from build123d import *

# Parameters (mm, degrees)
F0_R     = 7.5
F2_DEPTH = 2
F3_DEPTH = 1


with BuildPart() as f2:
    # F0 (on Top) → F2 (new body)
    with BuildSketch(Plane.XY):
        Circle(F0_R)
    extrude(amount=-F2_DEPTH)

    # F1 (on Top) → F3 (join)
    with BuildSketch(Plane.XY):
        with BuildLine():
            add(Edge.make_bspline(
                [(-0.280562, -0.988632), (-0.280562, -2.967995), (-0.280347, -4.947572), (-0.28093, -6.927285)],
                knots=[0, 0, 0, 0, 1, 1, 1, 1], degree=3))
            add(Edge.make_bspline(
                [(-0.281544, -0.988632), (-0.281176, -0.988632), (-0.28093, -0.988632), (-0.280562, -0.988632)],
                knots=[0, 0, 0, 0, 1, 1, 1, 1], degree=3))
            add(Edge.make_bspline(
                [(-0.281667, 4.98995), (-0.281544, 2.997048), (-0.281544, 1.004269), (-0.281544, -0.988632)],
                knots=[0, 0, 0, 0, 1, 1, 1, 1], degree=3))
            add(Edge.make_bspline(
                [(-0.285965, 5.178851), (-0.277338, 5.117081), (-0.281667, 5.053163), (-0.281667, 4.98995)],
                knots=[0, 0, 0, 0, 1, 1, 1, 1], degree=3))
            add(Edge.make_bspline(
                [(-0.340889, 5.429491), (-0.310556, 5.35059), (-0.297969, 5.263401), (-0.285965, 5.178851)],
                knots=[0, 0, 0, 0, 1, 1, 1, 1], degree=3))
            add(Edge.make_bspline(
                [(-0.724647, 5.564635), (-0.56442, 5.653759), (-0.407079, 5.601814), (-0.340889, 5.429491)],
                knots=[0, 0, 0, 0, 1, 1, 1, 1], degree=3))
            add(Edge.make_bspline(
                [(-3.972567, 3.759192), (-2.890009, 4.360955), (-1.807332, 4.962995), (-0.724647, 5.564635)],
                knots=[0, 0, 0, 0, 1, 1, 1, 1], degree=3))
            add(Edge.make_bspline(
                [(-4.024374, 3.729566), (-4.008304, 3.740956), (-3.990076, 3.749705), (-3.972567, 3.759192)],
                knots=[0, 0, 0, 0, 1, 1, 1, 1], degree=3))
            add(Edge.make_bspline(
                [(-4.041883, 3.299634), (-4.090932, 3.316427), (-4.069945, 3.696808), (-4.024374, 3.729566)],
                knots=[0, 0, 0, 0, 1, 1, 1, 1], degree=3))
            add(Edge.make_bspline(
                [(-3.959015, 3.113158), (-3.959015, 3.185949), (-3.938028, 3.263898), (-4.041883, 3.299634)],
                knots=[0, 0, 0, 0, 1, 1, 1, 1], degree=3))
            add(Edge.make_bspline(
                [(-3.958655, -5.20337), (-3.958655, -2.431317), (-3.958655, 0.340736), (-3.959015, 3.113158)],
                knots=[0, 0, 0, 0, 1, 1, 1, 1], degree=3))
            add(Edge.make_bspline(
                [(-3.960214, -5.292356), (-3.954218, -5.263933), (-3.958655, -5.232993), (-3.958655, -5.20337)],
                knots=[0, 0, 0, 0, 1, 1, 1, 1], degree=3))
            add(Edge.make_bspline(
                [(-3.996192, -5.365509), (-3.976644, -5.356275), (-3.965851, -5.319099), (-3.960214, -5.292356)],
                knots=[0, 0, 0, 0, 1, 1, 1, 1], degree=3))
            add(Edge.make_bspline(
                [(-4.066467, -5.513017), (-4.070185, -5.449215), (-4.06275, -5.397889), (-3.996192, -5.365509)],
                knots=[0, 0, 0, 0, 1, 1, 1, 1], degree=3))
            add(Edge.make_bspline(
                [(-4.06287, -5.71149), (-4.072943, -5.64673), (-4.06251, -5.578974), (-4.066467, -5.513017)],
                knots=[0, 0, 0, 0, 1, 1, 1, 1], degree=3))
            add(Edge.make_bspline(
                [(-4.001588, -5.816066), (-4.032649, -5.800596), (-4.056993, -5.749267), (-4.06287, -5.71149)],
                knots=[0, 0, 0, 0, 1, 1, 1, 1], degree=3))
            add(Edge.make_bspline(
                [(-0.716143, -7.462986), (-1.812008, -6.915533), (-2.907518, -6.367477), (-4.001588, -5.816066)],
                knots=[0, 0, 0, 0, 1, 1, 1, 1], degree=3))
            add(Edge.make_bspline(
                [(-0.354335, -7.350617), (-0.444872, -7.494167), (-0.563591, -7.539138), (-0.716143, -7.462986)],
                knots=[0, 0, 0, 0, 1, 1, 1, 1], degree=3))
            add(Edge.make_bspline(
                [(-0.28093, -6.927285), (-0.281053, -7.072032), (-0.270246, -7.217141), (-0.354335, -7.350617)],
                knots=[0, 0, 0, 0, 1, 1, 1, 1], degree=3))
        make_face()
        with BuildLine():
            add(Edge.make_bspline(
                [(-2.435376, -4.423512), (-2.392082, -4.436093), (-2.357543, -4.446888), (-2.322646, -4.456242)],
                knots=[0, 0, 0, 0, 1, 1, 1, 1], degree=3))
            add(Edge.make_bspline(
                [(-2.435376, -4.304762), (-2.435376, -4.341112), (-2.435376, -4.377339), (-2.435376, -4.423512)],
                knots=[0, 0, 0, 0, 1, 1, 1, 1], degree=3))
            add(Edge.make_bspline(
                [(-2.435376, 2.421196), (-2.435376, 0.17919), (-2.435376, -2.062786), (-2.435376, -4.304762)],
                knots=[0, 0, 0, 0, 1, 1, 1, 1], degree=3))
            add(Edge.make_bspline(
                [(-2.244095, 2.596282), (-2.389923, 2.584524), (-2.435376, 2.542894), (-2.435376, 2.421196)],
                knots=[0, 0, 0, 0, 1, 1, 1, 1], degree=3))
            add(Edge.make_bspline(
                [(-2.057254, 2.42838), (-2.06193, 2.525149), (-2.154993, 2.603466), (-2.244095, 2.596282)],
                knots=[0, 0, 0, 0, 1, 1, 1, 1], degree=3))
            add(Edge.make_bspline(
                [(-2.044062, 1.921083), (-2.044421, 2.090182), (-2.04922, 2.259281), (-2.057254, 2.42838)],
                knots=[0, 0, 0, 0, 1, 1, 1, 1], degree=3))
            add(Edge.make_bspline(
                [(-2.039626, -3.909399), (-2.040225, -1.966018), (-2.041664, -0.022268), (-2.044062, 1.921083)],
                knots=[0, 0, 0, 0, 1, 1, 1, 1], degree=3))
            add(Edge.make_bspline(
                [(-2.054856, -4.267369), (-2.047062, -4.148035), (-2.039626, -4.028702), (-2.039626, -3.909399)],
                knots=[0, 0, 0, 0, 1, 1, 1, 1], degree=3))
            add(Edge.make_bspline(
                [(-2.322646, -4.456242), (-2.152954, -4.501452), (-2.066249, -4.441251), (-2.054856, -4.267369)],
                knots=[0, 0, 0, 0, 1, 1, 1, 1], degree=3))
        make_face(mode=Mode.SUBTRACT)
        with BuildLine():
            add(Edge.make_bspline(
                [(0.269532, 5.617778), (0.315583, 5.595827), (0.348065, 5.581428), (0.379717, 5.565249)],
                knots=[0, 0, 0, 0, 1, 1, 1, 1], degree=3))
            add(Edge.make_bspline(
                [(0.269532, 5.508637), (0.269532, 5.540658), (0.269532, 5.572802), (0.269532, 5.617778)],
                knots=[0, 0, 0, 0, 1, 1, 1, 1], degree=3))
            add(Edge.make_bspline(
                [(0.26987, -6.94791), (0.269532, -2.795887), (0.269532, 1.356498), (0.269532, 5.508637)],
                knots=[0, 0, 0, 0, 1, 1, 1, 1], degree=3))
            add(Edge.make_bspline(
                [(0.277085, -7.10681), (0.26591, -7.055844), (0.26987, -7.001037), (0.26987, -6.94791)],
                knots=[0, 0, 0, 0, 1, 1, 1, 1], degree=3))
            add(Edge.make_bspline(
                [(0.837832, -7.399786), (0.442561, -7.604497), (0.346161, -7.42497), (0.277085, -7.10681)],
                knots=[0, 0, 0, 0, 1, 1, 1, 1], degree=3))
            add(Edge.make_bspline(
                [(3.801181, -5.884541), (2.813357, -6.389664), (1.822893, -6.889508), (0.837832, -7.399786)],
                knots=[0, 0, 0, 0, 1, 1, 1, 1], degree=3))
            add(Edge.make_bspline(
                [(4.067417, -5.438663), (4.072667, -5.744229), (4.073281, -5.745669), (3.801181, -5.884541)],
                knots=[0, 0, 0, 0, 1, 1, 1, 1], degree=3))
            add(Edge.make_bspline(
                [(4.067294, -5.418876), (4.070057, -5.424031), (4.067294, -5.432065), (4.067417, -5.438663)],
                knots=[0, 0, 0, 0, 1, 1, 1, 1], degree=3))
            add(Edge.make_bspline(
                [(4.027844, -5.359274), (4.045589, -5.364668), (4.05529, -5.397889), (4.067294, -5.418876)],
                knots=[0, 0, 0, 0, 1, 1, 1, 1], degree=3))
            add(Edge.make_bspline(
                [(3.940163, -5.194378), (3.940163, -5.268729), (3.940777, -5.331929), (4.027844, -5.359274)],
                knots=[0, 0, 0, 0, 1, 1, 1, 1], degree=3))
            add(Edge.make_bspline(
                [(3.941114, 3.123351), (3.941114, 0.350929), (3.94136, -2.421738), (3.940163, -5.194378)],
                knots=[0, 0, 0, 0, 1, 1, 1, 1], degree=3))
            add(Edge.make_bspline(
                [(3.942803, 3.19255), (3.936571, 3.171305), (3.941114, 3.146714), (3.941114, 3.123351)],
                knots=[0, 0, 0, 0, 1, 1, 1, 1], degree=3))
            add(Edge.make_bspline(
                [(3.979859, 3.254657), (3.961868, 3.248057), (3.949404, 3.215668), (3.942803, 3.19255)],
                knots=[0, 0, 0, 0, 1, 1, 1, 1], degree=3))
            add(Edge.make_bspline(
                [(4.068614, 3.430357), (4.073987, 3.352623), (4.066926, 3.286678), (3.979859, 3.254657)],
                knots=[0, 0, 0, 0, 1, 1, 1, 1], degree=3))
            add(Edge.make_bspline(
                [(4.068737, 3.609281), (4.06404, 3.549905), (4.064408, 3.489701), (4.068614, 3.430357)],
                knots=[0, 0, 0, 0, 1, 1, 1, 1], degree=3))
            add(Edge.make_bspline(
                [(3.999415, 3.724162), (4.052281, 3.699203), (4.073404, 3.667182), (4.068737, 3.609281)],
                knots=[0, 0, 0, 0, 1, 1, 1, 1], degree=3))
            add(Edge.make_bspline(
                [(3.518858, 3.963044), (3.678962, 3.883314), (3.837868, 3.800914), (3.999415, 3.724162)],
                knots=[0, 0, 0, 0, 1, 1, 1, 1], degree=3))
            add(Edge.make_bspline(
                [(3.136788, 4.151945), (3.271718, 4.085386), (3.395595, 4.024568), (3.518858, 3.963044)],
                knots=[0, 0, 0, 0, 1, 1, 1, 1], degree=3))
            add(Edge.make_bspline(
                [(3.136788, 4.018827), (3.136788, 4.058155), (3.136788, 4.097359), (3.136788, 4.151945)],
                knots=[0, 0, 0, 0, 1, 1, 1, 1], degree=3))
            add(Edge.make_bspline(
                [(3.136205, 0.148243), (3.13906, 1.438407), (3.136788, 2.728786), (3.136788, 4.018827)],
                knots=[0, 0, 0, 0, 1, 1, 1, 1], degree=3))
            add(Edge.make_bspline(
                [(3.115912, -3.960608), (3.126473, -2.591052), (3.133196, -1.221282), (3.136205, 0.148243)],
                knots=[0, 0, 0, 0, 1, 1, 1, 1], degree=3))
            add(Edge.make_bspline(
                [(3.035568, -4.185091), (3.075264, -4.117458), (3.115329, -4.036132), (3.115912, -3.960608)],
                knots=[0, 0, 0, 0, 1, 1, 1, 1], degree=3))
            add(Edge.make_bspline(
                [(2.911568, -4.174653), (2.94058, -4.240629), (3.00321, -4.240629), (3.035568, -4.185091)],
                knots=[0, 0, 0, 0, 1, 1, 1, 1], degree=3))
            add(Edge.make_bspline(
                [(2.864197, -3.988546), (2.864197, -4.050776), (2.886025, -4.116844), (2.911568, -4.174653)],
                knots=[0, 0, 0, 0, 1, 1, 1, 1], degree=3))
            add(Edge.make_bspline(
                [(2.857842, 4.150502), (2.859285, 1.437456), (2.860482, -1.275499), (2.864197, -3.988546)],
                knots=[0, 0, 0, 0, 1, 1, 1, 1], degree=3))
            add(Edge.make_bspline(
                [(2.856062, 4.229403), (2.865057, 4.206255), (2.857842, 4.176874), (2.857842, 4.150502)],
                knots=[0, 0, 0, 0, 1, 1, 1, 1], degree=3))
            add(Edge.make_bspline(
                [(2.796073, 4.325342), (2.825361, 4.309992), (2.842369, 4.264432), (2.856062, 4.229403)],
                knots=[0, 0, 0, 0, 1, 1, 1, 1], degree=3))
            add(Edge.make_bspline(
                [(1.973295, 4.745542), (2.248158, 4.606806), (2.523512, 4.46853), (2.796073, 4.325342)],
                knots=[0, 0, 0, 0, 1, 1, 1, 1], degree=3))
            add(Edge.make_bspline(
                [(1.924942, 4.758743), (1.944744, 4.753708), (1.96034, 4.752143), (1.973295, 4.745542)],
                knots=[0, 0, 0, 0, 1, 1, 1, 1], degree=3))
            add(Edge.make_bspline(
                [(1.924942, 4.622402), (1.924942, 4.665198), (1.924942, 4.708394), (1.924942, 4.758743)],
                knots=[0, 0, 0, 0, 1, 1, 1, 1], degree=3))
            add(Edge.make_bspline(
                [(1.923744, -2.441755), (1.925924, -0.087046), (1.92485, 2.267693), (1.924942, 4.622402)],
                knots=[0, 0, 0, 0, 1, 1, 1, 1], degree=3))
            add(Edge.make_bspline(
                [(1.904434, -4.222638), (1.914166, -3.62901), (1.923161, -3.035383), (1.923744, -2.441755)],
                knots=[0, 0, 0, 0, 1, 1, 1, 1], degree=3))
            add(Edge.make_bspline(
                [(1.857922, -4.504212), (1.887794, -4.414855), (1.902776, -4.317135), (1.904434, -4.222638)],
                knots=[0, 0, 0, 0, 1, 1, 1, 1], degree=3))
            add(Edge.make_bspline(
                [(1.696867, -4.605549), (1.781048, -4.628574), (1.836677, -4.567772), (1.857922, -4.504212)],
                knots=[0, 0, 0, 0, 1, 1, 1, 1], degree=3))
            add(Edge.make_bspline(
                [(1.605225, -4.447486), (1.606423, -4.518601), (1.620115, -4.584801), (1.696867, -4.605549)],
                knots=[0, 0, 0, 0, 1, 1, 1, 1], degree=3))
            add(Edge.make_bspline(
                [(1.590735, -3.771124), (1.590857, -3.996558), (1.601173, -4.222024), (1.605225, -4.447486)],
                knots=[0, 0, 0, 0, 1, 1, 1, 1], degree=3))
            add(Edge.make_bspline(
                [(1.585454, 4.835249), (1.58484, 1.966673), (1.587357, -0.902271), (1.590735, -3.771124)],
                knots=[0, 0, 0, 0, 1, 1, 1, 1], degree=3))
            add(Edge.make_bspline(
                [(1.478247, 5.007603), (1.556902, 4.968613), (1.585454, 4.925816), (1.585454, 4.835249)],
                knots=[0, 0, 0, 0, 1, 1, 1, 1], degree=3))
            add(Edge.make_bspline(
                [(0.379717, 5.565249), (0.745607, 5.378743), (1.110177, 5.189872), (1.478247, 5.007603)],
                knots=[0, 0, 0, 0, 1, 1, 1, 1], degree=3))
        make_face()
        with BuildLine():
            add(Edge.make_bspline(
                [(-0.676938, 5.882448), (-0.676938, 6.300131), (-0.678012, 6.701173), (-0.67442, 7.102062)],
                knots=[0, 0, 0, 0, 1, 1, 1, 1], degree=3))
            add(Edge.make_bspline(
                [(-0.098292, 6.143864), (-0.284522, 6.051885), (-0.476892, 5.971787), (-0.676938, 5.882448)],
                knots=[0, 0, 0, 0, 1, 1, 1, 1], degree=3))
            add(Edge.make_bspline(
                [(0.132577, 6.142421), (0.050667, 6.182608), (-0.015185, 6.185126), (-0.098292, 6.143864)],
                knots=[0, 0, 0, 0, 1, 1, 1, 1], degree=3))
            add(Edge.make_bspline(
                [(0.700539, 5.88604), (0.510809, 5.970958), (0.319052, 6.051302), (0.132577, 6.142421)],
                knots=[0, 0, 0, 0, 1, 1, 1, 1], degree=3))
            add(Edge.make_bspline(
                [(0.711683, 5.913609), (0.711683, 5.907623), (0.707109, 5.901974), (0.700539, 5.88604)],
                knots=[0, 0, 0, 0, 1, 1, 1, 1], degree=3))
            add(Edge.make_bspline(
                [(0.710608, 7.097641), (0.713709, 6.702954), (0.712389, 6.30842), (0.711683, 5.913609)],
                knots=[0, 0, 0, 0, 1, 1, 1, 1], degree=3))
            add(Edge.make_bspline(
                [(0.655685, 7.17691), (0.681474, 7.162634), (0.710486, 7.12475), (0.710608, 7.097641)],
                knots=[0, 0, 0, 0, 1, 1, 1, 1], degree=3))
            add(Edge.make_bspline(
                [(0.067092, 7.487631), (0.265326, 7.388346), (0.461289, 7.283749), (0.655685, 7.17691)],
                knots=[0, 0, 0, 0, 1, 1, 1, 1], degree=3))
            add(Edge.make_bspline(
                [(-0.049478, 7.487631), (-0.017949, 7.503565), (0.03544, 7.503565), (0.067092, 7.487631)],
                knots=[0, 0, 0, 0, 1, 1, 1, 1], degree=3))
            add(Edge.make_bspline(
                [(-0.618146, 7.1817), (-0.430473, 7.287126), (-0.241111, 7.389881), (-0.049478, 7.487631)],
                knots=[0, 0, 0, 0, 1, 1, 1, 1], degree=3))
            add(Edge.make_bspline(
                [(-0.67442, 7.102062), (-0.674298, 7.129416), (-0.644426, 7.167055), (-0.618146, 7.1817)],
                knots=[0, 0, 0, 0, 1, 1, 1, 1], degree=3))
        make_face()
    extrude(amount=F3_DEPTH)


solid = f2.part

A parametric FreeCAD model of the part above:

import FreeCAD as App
import Part
import Sketcher
Q = App.Units.Quantity

doc = App.newDocument("Part")
body = doc.addObject("PartDesign::Body", "Body")

sketch1 = doc.addObject("Sketcher::SketchObject", "Sketch")
body.addObject(sketch1)
sketch1.AttachmentSupport = (doc.XY_Plane, [""])
sketch1.MapMode = "FlatFace"
sketch1.addGeometry(Part.Circle(App.Vector(0, 0, 0), App.Vector(0, 0, 1), 8), False)
sketch1.addConstraint(Sketcher.Constraint("Coincident", 0, 3, -1, 1))
sketch1.addConstraint(Sketcher.Constraint("Diameter", 0, Q("15 mm")))
pad1 = doc.addObject("PartDesign::Pad", "Pad")
body.addObject(pad1)
pad1.Profile = sketch1
pad1.Length = 2
pad1.Reversed = True

sketch2 = doc.addObject("Sketcher::SketchObject", "Sketch001")
body.addObject(sketch2)
sketch2.AttachmentSupport = (doc.XY_Plane, [""])
sketch2.MapMode = "FlatFace"
sketch2.addGeometry(Part.BSplineCurve([App.Vector(-0.280562, -0.988632, 0), App.Vector(-0.280562, -2.967995, 0), App.Vector(-0.280347, -4.947572, 0), App.Vector(-0.28093, -6.927285, 0)], [4, 4], [0, 1], False, 3, [1, 1, 1, 1], False), False)
sketch2.addGeometry(Part.BSplineCurve([App.Vector(-0.281544, -0.988632, 0), App.Vector(-0.281176, -0.988632, 0), App.Vector(-0.28093, -0.988632, 0), App.Vector(-0.280562, -0.988632, 0)], [4, 4], [0, 1], False, 3, [1, 1, 1, 1], False), False)
sketch2.addGeometry(Part.BSplineCurve([App.Vector(-0.281667, 4.98995, 0), App.Vector(-0.281544, 2.997048, 0), App.Vector(-0.281544, 1.004269, 0), App.Vector(-0.281544, -0.988632, 0)], [4, 4], [0, 1], False, 3, [1, 1, 1, 1], False), False)
sketch2.addGeometry(Part.BSplineCurve([App.Vector(-0.285965, 5.178851, 0), App.Vector(-0.277338, 5.117081, 0), App.Vector(-0.281667, 5.053163, 0), App.Vector(-0.281667, 4.98995, 0)], [4, 4], [0, 1], False, 3, [1, 1, 1, 1], False), False)
sketch2.addGeometry(Part.BSplineCurve([App.Vector(-0.340889, 5.429491, 0), App.Vector(-0.310556, 5.35059, 0), App.Vector(-0.297969, 5.263401, 0), App.Vector(-0.285965, 5.178851, 0)], [4, 4], [0, 1], False, 3, [1, 1, 1, 1], False), False)
sketch2.addGeometry(Part.BSplineCurve([App.Vector(-0.724647, 5.564635, 0), App.Vector(-0.56442, 5.653759, 0), App.Vector(-0.407079, 5.601814, 0), App.Vector(-0.340889, 5.429491, 0)], [4, 4], [0, 1], False, 3, [1, 1, 1, 1], False), False)
sketch2.addGeometry(Part.BSplineCurve([App.Vector(-3.972567, 3.759192, 0), App.Vector(-2.890009, 4.360955, 0), App.Vector(-1.807332, 4.962995, 0), App.Vector(-0.724647, 5.564635, 0)], [4, 4], [0, 1], False, 3, [1, 1, 1, 1], False), False)
sketch2.addGeometry(Part.BSplineCurve([App.Vector(-4.024374, 3.729566, 0), App.Vector(-4.008304, 3.740956, 0), App.Vector(-3.990076, 3.749705, 0), App.Vector(-3.972567, 3.759192, 0)], [4, 4], [0, 1], False, 3, [1, 1, 1, 1], False), False)
sketch2.addGeometry(Part.BSplineCurve([App.Vector(-4.041883, 3.299634, 0), App.Vector(-4.090932, 3.316427, 0), App.Vector(-4.069945, 3.696808, 0), App.Vector(-4.024374, 3.729566, 0)], [4, 4], [0, 1], False, 3, [1, 1, 1, 1], False), False)
sketch2.addGeometry(Part.BSplineCurve([App.Vector(-3.959015, 3.113158, 0), App.Vector(-3.959015, 3.185949, 0), App.Vector(-3.938028, 3.263898, 0), App.Vector(-4.041883, 3.299634, 0)], [4, 4], [0, 1], False, 3, [1, 1, 1, 1], False), False)
sketch2.addGeometry(Part.BSplineCurve([App.Vector(-3.960214, -5.292356, 0), App.Vector(-3.954218, -5.263933, 0), App.Vector(-3.958655, -5.232993, 0), App.Vector(-3.958655, -2.431317, 0), App.Vector(-3.958655, 0.340736, 0), App.Vector(-3.959015, 3.113158, 0)], [4, 2, 4], [0, 1, 94.577726766], False, 3, [1, 1, 1, 1, 1, 1], False), False)
sketch2.addGeometry(Part.BSplineCurve([App.Vector(-3.996192, -5.365509, 0), App.Vector(-3.976644, -5.356275, 0), App.Vector(-3.965851, -5.319099, 0), App.Vector(-3.960214, -5.292356, 0)], [4, 4], [0, 1], False, 3, [1, 1, 1, 1], False), False)
sketch2.addGeometry(Part.BSplineCurve([App.Vector(-4.066467, -5.513017, 0), App.Vector(-4.070185, -5.449215, 0), App.Vector(-4.06275, -5.397889, 0), App.Vector(-3.996192, -5.365509, 0)], [4, 4], [0, 1], False, 3, [1, 1, 1, 1], False), False)
sketch2.addGeometry(Part.BSplineCurve([App.Vector(-4.06287, -5.71149, 0), App.Vector(-4.072943, -5.64673, 0), App.Vector(-4.06251, -5.578974, 0), App.Vector(-4.066467, -5.513017, 0)], [4, 4], [0, 1], False, 3, [1, 1, 1, 1], False), False)
sketch2.addGeometry(Part.BSplineCurve([App.Vector(-4.001588, -5.816066, 0), App.Vector(-4.032649, -5.800596, 0), App.Vector(-4.056993, -5.749267, 0), App.Vector(-4.06287, -5.71149, 0)], [4, 4], [0, 1], False, 3, [1, 1, 1, 1], False), False)
sketch2.addGeometry(Part.BSplineCurve([App.Vector(-0.716143, -7.462986, 0), App.Vector(-1.812008, -6.915533, 0), App.Vector(-2.907518, -6.367477, 0), App.Vector(-4.001588, -5.816066, 0)], [4, 4], [0, 1], False, 3, [1, 1, 1, 1], False), False)
sketch2.addGeometry(Part.BSplineCurve([App.Vector(-0.354335, -7.350617, 0), App.Vector(-0.444872, -7.494167, 0), App.Vector(-0.563591, -7.539138, 0), App.Vector(-0.716143, -7.462986, 0)], [4, 4], [0, 1], False, 3, [1, 1, 1, 1], False), False)
sketch2.addGeometry(Part.BSplineCurve([App.Vector(-0.28093, -6.927285, 0), App.Vector(-0.281053, -7.072032, 0), App.Vector(-0.270246, -7.217141, 0), App.Vector(-0.354335, -7.350617, 0)], [4, 4], [0, 1], False, 3, [1, 1, 1, 1], False), False)
sketch2.addGeometry(Part.BSplineCurve([App.Vector(-2.244095, 2.596282, 0), App.Vector(-2.389923, 2.584524, 0), App.Vector(-2.435376, 2.542894, 0), App.Vector(-2.435376, 0.17919, 0), App.Vector(-2.435376, -2.062786, 0), App.Vector(-2.435376, -4.341112, 0), App.Vector(-2.435376, -4.377339, 0), App.Vector(-2.435376, -4.423512, 0)], [4, 2, 2, 4], [0, 1, 19.422702099, 19.721396296], False, 3, [1, 1, 1, 1, 1, 1, 1, 1], False), False)
sketch2.addGeometry(Part.BSplineCurve([App.Vector(-2.057254, 2.42838, 0), App.Vector(-2.06193, 2.525149, 0), App.Vector(-2.154993, 2.603466, 0), App.Vector(-2.244095, 2.596282, 0)], [4, 4], [0, 1], False, 3, [1, 1, 1, 1], False), False)
sketch2.addGeometry(Part.BSplineCurve([App.Vector(-2.044062, 1.921083, 0), App.Vector(-2.044421, 2.090182, 0), App.Vector(-2.04922, 2.259281, 0), App.Vector(-2.057254, 2.42838, 0)], [4, 4], [0, 1], False, 3, [1, 1, 1, 1], False), False)
sketch2.addGeometry(Part.BSplineCurve([App.Vector(-2.039626, -3.909399, 0), App.Vector(-2.040225, -1.966018, 0), App.Vector(-2.041664, -0.022268, 0), App.Vector(-2.044062, 1.921083, 0)], [4, 4], [0, 1], False, 3, [1, 1, 1, 1], False), False)
sketch2.addGeometry(Part.BSplineCurve([App.Vector(-2.054856, -4.267369, 0), App.Vector(-2.047062, -4.148035, 0), App.Vector(-2.039626, -4.028702, 0), App.Vector(-2.039626, -3.909399, 0)], [4, 4], [0, 1], False, 3, [1, 1, 1, 1], False), False)
sketch2.addGeometry(Part.BSplineCurve([App.Vector(-2.322646, -4.456242, 0), App.Vector(-2.152954, -4.501452, 0), App.Vector(-2.066249, -4.441251, 0), App.Vector(-2.054856, -4.267369, 0)], [4, 4], [0, 1], False, 3, [1, 1, 1, 1], False), False)
sketch2.addGeometry(Part.BSplineCurve([App.Vector(-2.435376, -4.423512, 0), App.Vector(-2.392082, -4.436093, 0), App.Vector(-2.357543, -4.446888, 0), App.Vector(-2.322646, -4.456242, 0)], [4, 4], [0, 1], False, 3, [1, 1, 1, 1], False), False)
sketch2.addGeometry(Part.BSplineCurve([App.Vector(0.269532, 5.617778, 0), App.Vector(0.315583, 5.595827, 0), App.Vector(0.348065, 5.581428, 0), App.Vector(0.379717, 5.565249, 0)], [4, 4], [0, 1], False, 3, [1, 1, 1, 1], False), False)
sketch2.addGeometry(Part.BSplineCurve([App.Vector(0.26987, -6.94791, 0), App.Vector(0.269532, -2.795887, 0), App.Vector(0.269532, 1.356498, 0), App.Vector(0.269532, 5.540658, 0), App.Vector(0.269532, 5.572802, 0), App.Vector(0.269532, 5.617778, 0)], [4, 2, 4], [0, 1, 1.007711929], False, 3, [1, 1, 1, 1, 1, 1], False), False)
sketch2.addGeometry(Part.BSplineCurve([App.Vector(0.277085, -7.10681, 0), App.Vector(0.26591, -7.055844, 0), App.Vector(0.26987, -7.001037, 0), App.Vector(0.26987, -6.94791, 0)], [4, 4], [0, 1], False, 3, [1, 1, 1, 1], False), False)
sketch2.addGeometry(Part.BSplineCurve([App.Vector(0.837832, -7.399786, 0), App.Vector(0.442561, -7.604497, 0), App.Vector(0.346161, -7.42497, 0), App.Vector(0.277085, -7.10681, 0)], [4, 4], [0, 1], False, 3, [1, 1, 1, 1], False), False)
sketch2.addGeometry(Part.BSplineCurve([App.Vector(3.801181, -5.884541, 0), App.Vector(2.813357, -6.389664, 0), App.Vector(1.822893, -6.889508, 0), App.Vector(0.837832, -7.399786, 0)], [4, 4], [0, 1], False, 3, [1, 1, 1, 1], False), False)
sketch2.addGeometry(Part.BSplineCurve([App.Vector(4.067417, -5.438663, 0), App.Vector(4.072667, -5.744229, 0), App.Vector(4.073281, -5.745669, 0), App.Vector(3.801181, -5.884541, 0)], [4, 4], [0, 1], False, 3, [1, 1, 1, 1], False), False)
sketch2.addGeometry(Part.BSplineCurve([App.Vector(4.067294, -5.418876, 0), App.Vector(4.070057, -5.424031, 0), App.Vector(4.067294, -5.432065, 0), App.Vector(4.067417, -5.438663, 0)], [4, 4], [0, 1], False, 3, [1, 1, 1, 1], False), False)
sketch2.addGeometry(Part.BSplineCurve([App.Vector(4.027844, -5.359274, 0), App.Vector(4.045589, -5.364668, 0), App.Vector(4.05529, -5.397889, 0), App.Vector(4.067294, -5.418876, 0)], [4, 4], [0, 1], False, 3, [1, 1, 1, 1], False), False)
sketch2.addGeometry(Part.BSplineCurve([App.Vector(3.940163, -5.194378, 0), App.Vector(3.940163, -5.268729, 0), App.Vector(3.940777, -5.331929, 0), App.Vector(4.027844, -5.359274, 0)], [4, 4], [0, 1], False, 3, [1, 1, 1, 1], False), False)
sketch2.addGeometry(Part.BSplineCurve([App.Vector(3.942803, 3.19255, 0), App.Vector(3.936571, 3.171305, 0), App.Vector(3.941114, 3.146714, 0), App.Vector(3.941114, 0.350929, 0), App.Vector(3.94136, -2.421738, 0), App.Vector(3.940163, -5.194378, 0)], [4, 2, 4], [0, 1, 119.667208834], False, 3, [1, 1, 1, 1, 1, 1], False), False)
sketch2.addGeometry(Part.BSplineCurve([App.Vector(3.979859, 3.254657, 0), App.Vector(3.961868, 3.248057, 0), App.Vector(3.949404, 3.215668, 0), App.Vector(3.942803, 3.19255, 0)], [4, 4], [0, 1], False, 3, [1, 1, 1, 1], False), False)
sketch2.addGeometry(Part.BSplineCurve([App.Vector(4.068614, 3.430357, 0), App.Vector(4.073987, 3.352623, 0), App.Vector(4.066926, 3.286678, 0), App.Vector(3.979859, 3.254657, 0)], [4, 4], [0, 1], False, 3, [1, 1, 1, 1], False), False)
sketch2.addGeometry(Part.BSplineCurve([App.Vector(4.068737, 3.609281, 0), App.Vector(4.06404, 3.549905, 0), App.Vector(4.064408, 3.489701, 0), App.Vector(4.068614, 3.430357, 0)], [4, 4], [0, 1], False, 3, [1, 1, 1, 1], False), False)
sketch2.addGeometry(Part.BSplineCurve([App.Vector(3.999415, 3.724162, 0), App.Vector(4.052281, 3.699203, 0), App.Vector(4.073404, 3.667182, 0), App.Vector(4.068737, 3.609281, 0)], [4, 4], [0, 1], False, 3, [1, 1, 1, 1], False), False)
sketch2.addGeometry(Part.BSplineCurve([App.Vector(3.518858, 3.963044, 0), App.Vector(3.678962, 3.883314, 0), App.Vector(3.837868, 3.800914, 0), App.Vector(3.999415, 3.724162, 0)], [4, 4], [0, 1], False, 3, [1, 1, 1, 1], False), False)
sketch2.addGeometry(Part.BSplineCurve([App.Vector(3.136788, 4.151945, 0), App.Vector(3.271718, 4.085386, 0), App.Vector(3.395595, 4.024568, 0), App.Vector(3.518858, 3.963044, 0)], [4, 4], [0, 1], False, 3, [1, 1, 1, 1], False), False)
sketch2.addGeometry(Part.BSplineCurve([App.Vector(3.136205, 0.148243, 0), App.Vector(3.13906, 1.438407, 0), App.Vector(3.136788, 2.728786, 0), App.Vector(3.136788, 4.058155, 0), App.Vector(3.136788, 4.097359, 0), App.Vector(3.136788, 4.151945, 0)], [4, 2, 4], [0, 1, 1.030485853], False, 3, [1, 1, 1, 1, 1, 1], False), False)
sketch2.addGeometry(Part.BSplineCurve([App.Vector(3.115912, -3.960608, 0), App.Vector(3.126473, -2.591052, 0), App.Vector(3.133196, -1.221282, 0), App.Vector(3.136205, 0.148243, 0)], [4, 4], [0, 1], False, 3, [1, 1, 1, 1], False), False)
sketch2.addGeometry(Part.BSplineCurve([App.Vector(3.035568, -4.185091, 0), App.Vector(3.075264, -4.117458, 0), App.Vector(3.115329, -4.036132, 0), App.Vector(3.115912, -3.960608, 0)], [4, 4], [0, 1], False, 3, [1, 1, 1, 1], False), False)
sketch2.addGeometry(Part.BSplineCurve([App.Vector(2.911568, -4.174653, 0), App.Vector(2.94058, -4.240629, 0), App.Vector(3.00321, -4.240629, 0), App.Vector(3.035568, -4.185091, 0)], [4, 4], [0, 1], False, 3, [1, 1, 1, 1], False), False)
sketch2.addGeometry(Part.BSplineCurve([App.Vector(2.864197, -3.988546, 0), App.Vector(2.864197, -4.050776, 0), App.Vector(2.886025, -4.116844, 0), App.Vector(2.911568, -4.174653, 0)], [4, 4], [0, 1], False, 3, [1, 1, 1, 1], False), False)
sketch2.addGeometry(Part.BSplineCurve([App.Vector(2.857842, 4.150502, 0), App.Vector(2.859285, 1.437456, 0), App.Vector(2.860482, -1.275499, 0), App.Vector(2.864197, -3.988546, 0)], [4, 4], [0, 1], False, 3, [1, 1, 1, 1], False), False)
sketch2.addGeometry(Part.BSplineCurve([App.Vector(2.856062, 4.229403, 0), App.Vector(2.865057, 4.206255, 0), App.Vector(2.857842, 4.176874, 0), App.Vector(2.857842, 4.150502, 0)], [4, 4], [0, 1], False, 3, [1, 1, 1, 1], False), False)
sketch2.addGeometry(Part.BSplineCurve([App.Vector(2.796073, 4.325342, 0), App.Vector(2.825361, 4.309992, 0), App.Vector(2.842369, 4.264432, 0), App.Vector(2.856062, 4.229403, 0)], [4, 4], [0, 1], False, 3, [1, 1, 1, 1], False), False)
sketch2.addGeometry(Part.BSplineCurve([App.Vector(1.973295, 4.745542, 0), App.Vector(2.248158, 4.606806, 0), App.Vector(2.523512, 4.46853, 0), App.Vector(2.796073, 4.325342, 0)], [4, 4], [0, 1], False, 3, [1, 1, 1, 1], False), False)
sketch2.addGeometry(Part.BSplineCurve([App.Vector(1.924942, 4.758743, 0), App.Vector(1.944744, 4.753708, 0), App.Vector(1.96034, 4.752143, 0), App.Vector(1.973295, 4.745542, 0)], [4, 4], [0, 1], False, 3, [1, 1, 1, 1], False), False)
sketch2.addGeometry(Part.BSplineCurve([App.Vector(1.924942, 4.622402, 0), App.Vector(1.924942, 4.665198, 0), App.Vector(1.924942, 4.708394, 0), App.Vector(1.924942, 4.758743, 0)], [4, 4], [0, 1], False, 3, [1, 1, 1, 1], False), False)
sketch2.addGeometry(Part.BSplineCurve([App.Vector(1.923744, -2.441755, 0), App.Vector(1.925924, -0.087046, 0), App.Vector(1.92485, 2.267693, 0), App.Vector(1.924942, 4.622402, 0)], [4, 4], [0, 1], False, 3, [1, 1, 1, 1], False), False)
sketch2.addGeometry(Part.BSplineCurve([App.Vector(1.904434, -4.222638, 0), App.Vector(1.914166, -3.62901, 0), App.Vector(1.923161, -3.035383, 0), App.Vector(1.923744, -2.441755, 0)], [4, 4], [0, 1], False, 3, [1, 1, 1, 1], False), False)
sketch2.addGeometry(Part.BSplineCurve([App.Vector(1.857922, -4.504212, 0), App.Vector(1.887794, -4.414855, 0), App.Vector(1.902776, -4.317135, 0), App.Vector(1.904434, -4.222638, 0)], [4, 4], [0, 1], False, 3, [1, 1, 1, 1], False), False)
sketch2.addGeometry(Part.BSplineCurve([App.Vector(1.696867, -4.605549, 0), App.Vector(1.781048, -4.628574, 0), App.Vector(1.836677, -4.567772, 0), App.Vector(1.857922, -4.504212, 0)], [4, 4], [0, 1], False, 3, [1, 1, 1, 1], False), False)
sketch2.addGeometry(Part.BSplineCurve([App.Vector(1.605225, -4.447486, 0), App.Vector(1.606423, -4.518601, 0), App.Vector(1.620115, -4.584801, 0), App.Vector(1.696867, -4.605549, 0)], [4, 4], [0, 1], False, 3, [1, 1, 1, 1], False), False)
sketch2.addGeometry(Part.BSplineCurve([App.Vector(1.590735, -3.771124, 0), App.Vector(1.590857, -3.996558, 0), App.Vector(1.601173, -4.222024, 0), App.Vector(1.605225, -4.447486, 0)], [4, 4], [0, 1], False, 3, [1, 1, 1, 1], False), False)
sketch2.addGeometry(Part.BSplineCurve([App.Vector(1.585454, 4.835249, 0), App.Vector(1.58484, 1.966673, 0), App.Vector(1.587357, -0.902271, 0), App.Vector(1.590735, -3.771124, 0)], [4, 4], [0, 1], False, 3, [1, 1, 1, 1], False), False)
sketch2.addGeometry(Part.BSplineCurve([App.Vector(1.478247, 5.007603, 0), App.Vector(1.556902, 4.968613, 0), App.Vector(1.585454, 4.925816, 0), App.Vector(1.585454, 4.835249, 0)], [4, 4], [0, 1], False, 3, [1, 1, 1, 1], False), False)
sketch2.addGeometry(Part.BSplineCurve([App.Vector(0.379717, 5.565249, 0), App.Vector(0.745607, 5.378743, 0), App.Vector(1.110177, 5.189872, 0), App.Vector(1.478247, 5.007603, 0)], [4, 4], [0, 1], False, 3, [1, 1, 1, 1], False), False)
sketch2.addGeometry(Part.BSplineCurve([App.Vector(-0.676938, 5.882448, 0), App.Vector(-0.676938, 6.300131, 0), App.Vector(-0.678012, 6.701173, 0), App.Vector(-0.67442, 7.102062, 0)], [4, 4], [0, 1], False, 3, [1, 1, 1, 1], False), False)
sketch2.addGeometry(Part.BSplineCurve([App.Vector(-0.098292, 6.143864, 0), App.Vector(-0.284522, 6.051885, 0), App.Vector(-0.476892, 5.971787, 0), App.Vector(-0.676938, 5.882448, 0)], [4, 4], [0, 1], False, 3, [1, 1, 1, 1], False), False)
sketch2.addGeometry(Part.BSplineCurve([App.Vector(0.132577, 6.142421, 0), App.Vector(0.050667, 6.182608, 0), App.Vector(-0.015185, 6.185126, 0), App.Vector(-0.098292, 6.143864, 0)], [4, 4], [0, 1], False, 3, [1, 1, 1, 1], False), False)
sketch2.addGeometry(Part.BSplineCurve([App.Vector(0.700539, 5.88604, 0), App.Vector(0.510809, 5.970958, 0), App.Vector(0.319052, 6.051302, 0), App.Vector(0.132577, 6.142421, 0)], [4, 4], [0, 1], False, 3, [1, 1, 1, 1], False), False)
sketch2.addGeometry(Part.BSplineCurve([App.Vector(0.711683, 5.913609, 0), App.Vector(0.711683, 5.907623, 0), App.Vector(0.707109, 5.901974, 0), App.Vector(0.700539, 5.88604, 0)], [4, 4], [0, 1], False, 3, [1, 1, 1, 1], False), False)
sketch2.addGeometry(Part.BSplineCurve([App.Vector(0.710608, 7.097641, 0), App.Vector(0.713709, 6.702954, 0), App.Vector(0.712389, 6.30842, 0), App.Vector(0.711683, 5.913609, 0)], [4, 4], [0, 1], False, 3, [1, 1, 1, 1], False), False)
sketch2.addGeometry(Part.BSplineCurve([App.Vector(0.655685, 7.17691, 0), App.Vector(0.681474, 7.162634, 0), App.Vector(0.710486, 7.12475, 0), App.Vector(0.710608, 7.097641, 0)], [4, 4], [0, 1], False, 3, [1, 1, 1, 1], False), False)
sketch2.addGeometry(Part.BSplineCurve([App.Vector(0.067092, 7.487631, 0), App.Vector(0.265326, 7.388346, 0), App.Vector(0.461289, 7.283749, 0), App.Vector(0.655685, 7.17691, 0)], [4, 4], [0, 1], False, 3, [1, 1, 1, 1], False), False)
sketch2.addGeometry(Part.BSplineCurve([App.Vector(-0.049478, 7.487631, 0), App.Vector(-0.017949, 7.503565, 0), App.Vector(0.03544, 7.503565, 0), App.Vector(0.067092, 7.487631, 0)], [4, 4], [0, 1], False, 3, [1, 1, 1, 1], False), False)
sketch2.addGeometry(Part.BSplineCurve([App.Vector(-0.618146, 7.1817, 0), App.Vector(-0.430473, 7.287126, 0), App.Vector(-0.241111, 7.389881, 0), App.Vector(-0.049478, 7.487631, 0)], [4, 4], [0, 1], False, 3, [1, 1, 1, 1], False), False)
sketch2.addGeometry(Part.BSplineCurve([App.Vector(-0.67442, 7.102062, 0), App.Vector(-0.674298, 7.129416, 0), App.Vector(-0.644426, 7.167055, 0), App.Vector(-0.618146, 7.1817, 0)], [4, 4], [0, 1], False, 3, [1, 1, 1, 1], False), False)
sketch2.addConstraint(Sketcher.Constraint("Block", 0))
sketch2.addConstraint(Sketcher.Constraint("Block", 1))
sketch2.addConstraint(Sketcher.Constraint("Block", 2))
sketch2.addConstraint(Sketcher.Constraint("Block", 3))
sketch2.addConstraint(Sketcher.Constraint("Block", 4))
sketch2.addConstraint(Sketcher.Constraint("Block", 5))
sketch2.addConstraint(Sketcher.Constraint("Block", 6))
sketch2.addConstraint(Sketcher.Constraint("Block", 7))
sketch2.addConstraint(Sketcher.Constraint("Block", 8))
sketch2.addConstraint(Sketcher.Constraint("Block", 9))
sketch2.addConstraint(Sketcher.Constraint("Block", 10))
sketch2.addConstraint(Sketcher.Constraint("Block", 11))
sketch2.addConstraint(Sketcher.Constraint("Block", 12))
sketch2.addConstraint(Sketcher.Constraint("Block", 13))
sketch2.addConstraint(Sketcher.Constraint("Block", 14))
sketch2.addConstraint(Sketcher.Constraint("Block", 15))
sketch2.addConstraint(Sketcher.Constraint("Block", 16))
sketch2.addConstraint(Sketcher.Constraint("Block", 17))
sketch2.addConstraint(Sketcher.Constraint("Block", 18))
sketch2.addConstraint(Sketcher.Constraint("Block", 19))
sketch2.addConstraint(Sketcher.Constraint("Block", 20))
sketch2.addConstraint(Sketcher.Constraint("Block", 21))
sketch2.addConstraint(Sketcher.Constraint("Block", 22))
sketch2.addConstraint(Sketcher.Constraint("Block", 23))
sketch2.addConstraint(Sketcher.Constraint("Block", 24))
sketch2.addConstraint(Sketcher.Constraint("Block", 25))
sketch2.addConstraint(Sketcher.Constraint("Block", 26))
sketch2.addConstraint(Sketcher.Constraint("Block", 27))
sketch2.addConstraint(Sketcher.Constraint("Block", 28))
sketch2.addConstraint(Sketcher.Constraint("Block", 29))
sketch2.addConstraint(Sketcher.Constraint("Block", 30))
sketch2.addConstraint(Sketcher.Constraint("Block", 31))
sketch2.addConstraint(Sketcher.Constraint("Block", 32))
sketch2.addConstraint(Sketcher.Constraint("Block", 33))
sketch2.addConstraint(Sketcher.Constraint("Block", 34))
sketch2.addConstraint(Sketcher.Constraint("Block", 35))
sketch2.addConstraint(Sketcher.Constraint("Block", 36))
sketch2.addConstraint(Sketcher.Constraint("Block", 37))
sketch2.addConstraint(Sketcher.Constraint("Block", 38))
sketch2.addConstraint(Sketcher.Constraint("Block", 39))
sketch2.addConstraint(Sketcher.Constraint("Block", 40))
sketch2.addConstraint(Sketcher.Constraint("Block", 41))
sketch2.addConstraint(Sketcher.Constraint("Block", 42))
sketch2.addConstraint(Sketcher.Constraint("Block", 43))
sketch2.addConstraint(Sketcher.Constraint("Block", 44))
sketch2.addConstraint(Sketcher.Constraint("Block", 45))
sketch2.addConstraint(Sketcher.Constraint("Block", 46))
sketch2.addConstraint(Sketcher.Constraint("Block", 47))
sketch2.addConstraint(Sketcher.Constraint("Block", 48))
sketch2.addConstraint(Sketcher.Constraint("Block", 49))
sketch2.addConstraint(Sketcher.Constraint("Block", 50))
sketch2.addConstraint(Sketcher.Constraint("Block", 51))
sketch2.addConstraint(Sketcher.Constraint("Block", 52))
sketch2.addConstraint(Sketcher.Constraint("Block", 53))
sketch2.addConstraint(Sketcher.Constraint("Block", 54))
sketch2.addConstraint(Sketcher.Constraint("Block", 55))
sketch2.addConstraint(Sketcher.Constraint("Block", 56))
sketch2.addConstraint(Sketcher.Constraint("Block", 57))
sketch2.addConstraint(Sketcher.Constraint("Block", 58))
sketch2.addConstraint(Sketcher.Constraint("Block", 59))
sketch2.addConstraint(Sketcher.Constraint("Block", 60))
sketch2.addConstraint(Sketcher.Constraint("Block", 61))
sketch2.addConstraint(Sketcher.Constraint("Block", 62))
sketch2.addConstraint(Sketcher.Constraint("Block", 63))
sketch2.addConstraint(Sketcher.Constraint("Block", 64))
sketch2.addConstraint(Sketcher.Constraint("Block", 65))
sketch2.addConstraint(Sketcher.Constraint("Block", 66))
sketch2.addConstraint(Sketcher.Constraint("Block", 67))
sketch2.addConstraint(Sketcher.Constraint("Block", 68))
sketch2.addConstraint(Sketcher.Constraint("Block", 69))
sketch2.addConstraint(Sketcher.Constraint("Block", 70))
sketch2.addConstraint(Sketcher.Constraint("Block", 71))
pad2 = doc.addObject("PartDesign::Pad", "Pad001")
body.addObject(pad2)
pad2.Profile = sketch2
pad2.Length = 1

doc.recompute()
